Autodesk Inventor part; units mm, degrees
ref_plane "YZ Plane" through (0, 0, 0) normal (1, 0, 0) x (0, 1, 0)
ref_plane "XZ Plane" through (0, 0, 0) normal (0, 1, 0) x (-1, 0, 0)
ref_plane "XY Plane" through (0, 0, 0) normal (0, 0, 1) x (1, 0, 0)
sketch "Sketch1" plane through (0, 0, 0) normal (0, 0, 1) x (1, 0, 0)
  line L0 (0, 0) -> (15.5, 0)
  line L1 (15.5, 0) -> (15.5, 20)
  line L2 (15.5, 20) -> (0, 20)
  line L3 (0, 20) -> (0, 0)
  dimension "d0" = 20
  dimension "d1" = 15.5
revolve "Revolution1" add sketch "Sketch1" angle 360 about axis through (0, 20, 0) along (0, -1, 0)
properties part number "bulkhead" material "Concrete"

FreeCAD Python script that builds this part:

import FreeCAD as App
import Part
import Sketcher
Q = App.Units.Quantity


def add_polygon(sketch, points):
    """Adds a closed chain of lines whose ends are joined by coincident constraints."""
    first, n = sketch.GeometryCount, len(points)
    for a, b in zip(points, points[1:] + points[:1]):
        sketch.addGeometry(Part.LineSegment(App.Vector(*a, 0), App.Vector(*b, 0)), False)
    for i in range(n):
        sketch.addConstraint(Sketcher.Constraint("Coincident", first + i, 2, first + (i + 1) % n, 1))

doc = App.newDocument("Part")
params = doc.addObject("Spreadsheet::Sheet", "Params")
for row, (alias, value) in enumerate([
    ("sketch1_height", "20 mm"),
    ("sketch1_width", "15.5 mm"),
    ("revolution_angle", "360 deg"),
], start=1):
    params.set(f"A{row}", alias)
    params.set(f"B{row}", "=" + value)
    params.setAlias(f"B{row}", alias)

body = doc.addObject("PartDesign::Body", "Body")

sketch1 = body.newObject("Sketcher::SketchObject", "Sketch")
sketch1.AttachmentSupport = (doc.getObject("XY_Plane"), [""])
sketch1.MapMode = "FlatFace"
add_polygon(sketch1, [(0, 20), (0, 0), (16, 0), (16, 20)])
sketch1.addConstraint([
    Sketcher.Constraint("Vertical", 0),
    Sketcher.Constraint("Horizontal", 1),
    Sketcher.Constraint("Vertical", 2),
    Sketcher.Constraint("Horizontal", 3),
    Sketcher.Constraint("Coincident", 0, 2, -1, 1),
    Sketcher.Constraint("DistanceY", 0, 2, 0, 1, Q("20 mm")),
    Sketcher.Constraint("DistanceX", 1, 1, 1, 2, Q("15.5 mm")),
])
sketch1.setExpression("Constraints[9]", "Params.sketch1_height")
sketch1.setExpression("Constraints[10]", "Params.sketch1_width")
revolution = body.newObject("PartDesign::Revolution", "Revolution")
revolution.Profile = sketch1
revolution.ReferenceAxis = (sketch1, ["V_Axis"])
revolution.setExpression("Angle", "Params.revolution_angle")

doc.recompute()
